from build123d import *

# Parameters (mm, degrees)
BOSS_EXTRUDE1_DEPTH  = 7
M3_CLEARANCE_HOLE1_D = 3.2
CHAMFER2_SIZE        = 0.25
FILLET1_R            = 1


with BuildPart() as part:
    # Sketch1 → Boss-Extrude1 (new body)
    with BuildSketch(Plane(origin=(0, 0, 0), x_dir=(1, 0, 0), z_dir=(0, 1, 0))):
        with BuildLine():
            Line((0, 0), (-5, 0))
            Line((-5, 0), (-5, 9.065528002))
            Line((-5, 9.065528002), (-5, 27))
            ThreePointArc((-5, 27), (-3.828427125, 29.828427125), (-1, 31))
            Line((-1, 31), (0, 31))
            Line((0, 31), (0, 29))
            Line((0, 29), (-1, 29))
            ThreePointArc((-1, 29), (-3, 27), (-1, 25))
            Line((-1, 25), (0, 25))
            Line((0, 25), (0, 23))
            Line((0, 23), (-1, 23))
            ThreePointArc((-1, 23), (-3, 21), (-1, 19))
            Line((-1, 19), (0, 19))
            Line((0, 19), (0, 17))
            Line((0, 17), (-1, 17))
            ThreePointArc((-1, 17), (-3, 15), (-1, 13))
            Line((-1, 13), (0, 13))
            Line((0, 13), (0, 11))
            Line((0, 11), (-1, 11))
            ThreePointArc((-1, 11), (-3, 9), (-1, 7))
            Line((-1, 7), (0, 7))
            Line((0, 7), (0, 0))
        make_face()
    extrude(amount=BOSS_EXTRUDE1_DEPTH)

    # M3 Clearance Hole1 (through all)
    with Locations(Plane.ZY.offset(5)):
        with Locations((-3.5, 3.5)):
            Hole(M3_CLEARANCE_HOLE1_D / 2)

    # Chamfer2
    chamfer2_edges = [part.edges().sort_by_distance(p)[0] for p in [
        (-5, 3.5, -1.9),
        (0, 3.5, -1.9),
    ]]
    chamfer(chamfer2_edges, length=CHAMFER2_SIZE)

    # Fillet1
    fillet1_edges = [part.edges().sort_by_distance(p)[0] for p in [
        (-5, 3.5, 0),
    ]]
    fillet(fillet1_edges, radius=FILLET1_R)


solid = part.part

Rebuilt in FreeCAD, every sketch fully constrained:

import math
import FreeCAD as App
import Part
import Sketcher
from FreeCAD import Vector


def edges_at(feature, points):
    """Names of the edges that pass closest to the given points."""
    edges = feature.Shape.Edges
    near = lambda p: min(range(len(edges)), key=lambda i: edges[i].distToShape(Part.Vertex(*p))[0])
    return sorted({f"Edge{near(p) + 1}" for p in points})

doc = App.newDocument("Part")
body = doc.addObject("PartDesign::Body", "Body")

# Sketch on XZ plane
sketch1 = body.newObject("Sketcher::SketchObject", "Sketch")
sketch1.AttachmentSupport = (doc.getObject("XZ_Plane"), [""])
sketch1.MapMode = "FlatFace"
sketch1.addGeometry(Part.LineSegment(Vector(-5, 0, 0), Vector(0, 0, 0)), False)
sketch1.addGeometry(Part.LineSegment(Vector(0, 0, 0), Vector(0, -7, 0)), False)
sketch1.addGeometry(Part.LineSegment(Vector(0, -7, 0), Vector(-1, -7, 0)), False)
sketch1.addGeometry(Part.ArcOfCircle(Part.Circle(Vector(-1, -9, 0), Vector(0, 0, 1), 2), math.radians(90), math.radians(270)), False)
sketch1.addGeometry(Part.LineSegment(Vector(-1, -11, 0), Vector(0, -11, 0)), False)
sketch1.addGeometry(Part.LineSegment(Vector(0, -11, 0), Vector(0, -13, 0)), False)
sketch1.addGeometry(Part.LineSegment(Vector(0, -13, 0), Vector(-1, -13, 0)), False)
sketch1.addGeometry(Part.ArcOfCircle(Part.Circle(Vector(-1, -15, 0), Vector(0, 0, 1), 2), math.radians(90), math.radians(270)), False)
sketch1.addGeometry(Part.LineSegment(Vector(-1, -17, 0), Vector(0, -17, 0)), False)
sketch1.addGeometry(Part.LineSegment(Vector(0, -17, 0), Vector(0, -19, 0)), False)
sketch1.addGeometry(Part.LineSegment(Vector(0, -19, 0), Vector(-1, -19, 0)), False)
sketch1.addGeometry(Part.ArcOfCircle(Part.Circle(Vector(-1, -21, 0), Vector(0, 0, 1), 2), math.radians(90), math.radians(270)), False)
sketch1.addGeometry(Part.LineSegment(Vector(-1, -23, 0), Vector(0, -23, 0)), False)
sketch1.addGeometry(Part.LineSegment(Vector(0, -23, 0), Vector(0, -25, 0)), False)
sketch1.addGeometry(Part.LineSegment(Vector(0, -25, 0), Vector(-1, -25, 0)), False)
sketch1.addGeometry(Part.ArcOfCircle(Part.Circle(Vector(-1, -27, 0), Vector(0, 0, 1), 2), math.radians(90), math.radians(270)), False)
sketch1.addGeometry(Part.LineSegment(Vector(-1, -29, 0), Vector(0, -29, 0)), False)
sketch1.addGeometry(Part.LineSegment(Vector(0, -29, 0), Vector(0, -31, 0)), False)
sketch1.addGeometry(Part.LineSegment(Vector(0, -31, 0), Vector(-1, -31, 0)), False)
sketch1.addGeometry(Part.ArcOfCircle(Part.Circle(Vector(-1, -27, 0), Vector(0, 0, 1), 4), math.radians(180), math.radians(270)), False)
sketch1.addGeometry(Part.LineSegment(Vector(-5, -27, 0), Vector(-5, 0, 0)), False)
sketch1.addConstraint(Sketcher.Constraint("Coincident", 0, 2, 1, 1))
sketch1.addConstraint(Sketcher.Constraint("Coincident", 1, 2, 2, 1))
sketch1.addConstraint(Sketcher.Constraint("Tangent", 2, 2, 3, 1))
sketch1.addConstraint(Sketcher.Constraint("Tangent", 3, 2, 4, 1))
sketch1.addConstraint(Sketcher.Constraint("Coincident", 4, 2, 5, 1))
sketch1.addConstraint(Sketcher.Constraint("Coincident", 5, 2, 6, 1))
sketch1.addConstraint(Sketcher.Constraint("Tangent", 6, 2, 7, 1))
sketch1.addConstraint(Sketcher.Constraint("Tangent", 7, 2, 8, 1))
sketch1.addConstraint(Sketcher.Constraint("Coincident", 8, 2, 9, 1))
sketch1.addConstraint(Sketcher.Constraint("Coincident", 9, 2, 10, 1))
sketch1.addConstraint(Sketcher.Constraint("Tangent", 10, 2, 11, 1))
sketch1.addConstraint(Sketcher.Constraint("Tangent", 11, 2, 12, 1))
sketch1.addConstraint(Sketcher.Constraint("Coincident", 12, 2, 13, 1))
sketch1.addConstraint(Sketcher.Constraint("Coincident", 13, 2, 14, 1))
sketch1.addConstraint(Sketcher.Constraint("Tangent", 14, 2, 15, 1))
sketch1.addConstraint(Sketcher.Constraint("Tangent", 15, 2, 16, 1))
sketch1.addConstraint(Sketcher.Constraint("Coincident", 16, 2, 17, 1))
sketch1.addConstraint(Sketcher.Constraint("Coincident", 17, 2, 18, 1))
sketch1.addConstraint(Sketcher.Constraint("Tangent", 18, 2, 19, 2))
sketch1.addConstraint(Sketcher.Constraint("Tangent", 19, 1, 20, 1))
sketch1.addConstraint(Sketcher.Constraint("Coincident", 20, 2, 0, 1))
sketch1.addConstraint(Sketcher.Constraint("Horizontal", 0))
sketch1.addConstraint(Sketcher.Constraint("Vertical", 1))
sketch1.addConstraint(Sketcher.Constraint("Horizontal", 2))
sketch1.addConstraint(Sketcher.Constraint("Horizontal", 4))
sketch1.addConstraint(Sketcher.Constraint("Vertical", 5))
sketch1.addConstraint(Sketcher.Constraint("Horizontal", 6))
sketch1.addConstraint(Sketcher.Constraint("Horizontal", 8))
sketch1.addConstraint(Sketcher.Constraint("Vertical", 9))
sketch1.addConstraint(Sketcher.Constraint("Horizontal", 10))
sketch1.addConstraint(Sketcher.Constraint("Horizontal", 12))
sketch1.addConstraint(Sketcher.Constraint("Vertical", 13))
sketch1.addConstraint(Sketcher.Constraint("Horizontal", 14))
sketch1.addConstraint(Sketcher.Constraint("Horizontal", 16))
sketch1.addConstraint(Sketcher.Constraint("Vertical", 17))
sketch1.addConstraint(Sketcher.Constraint("Horizontal", 18))
sketch1.addConstraint(Sketcher.Constraint("Vertical", 20))
sketch1.addConstraint(Sketcher.Constraint("Coincident", 0, 2, -1, 1))
sketch1.addConstraint(Sketcher.Constraint("Coincident", 19, 3, 15, 3))
sketch1.addConstraint(Sketcher.Constraint("Equal", 3, 7))
sketch1.addConstraint(Sketcher.Constraint("Equal", 7, 11))
sketch1.addConstraint(Sketcher.Constraint("Equal", 11, 15))
sketch1.addConstraint(Sketcher.Constraint("PointOnObject", 4, 2, -2))
sketch1.addConstraint(Sketcher.Constraint("PointOnObject", 8, 2, -2))
sketch1.addConstraint(Sketcher.Constraint("PointOnObject", 12, 2, -2))
sketch1.addConstraint(Sketcher.Constraint("PointOnObject", 16, 2, -2))
sketch1.addConstraint(Sketcher.Constraint("Vertical", 3, 3, 7, 3))
sketch1.addConstraint(Sketcher.Constraint("Vertical", 7, 3, 11, 3))
sketch1.addConstraint(Sketcher.Constraint("Vertical", 11, 3, 15, 3))
sketch1.addConstraint(Sketcher.Constraint("Equal", 5, 9))
sketch1.addConstraint(Sketcher.Constraint("Equal", 9, 13))
sketch1.addConstraint(Sketcher.Constraint("Equal", 13, 17))
sketch1.addConstraint(Sketcher.Constraint("Radius", 3, 2.0))
sketch1.addConstraint(Sketcher.Constraint("Radius", 19, 4.0))
sketch1.addConstraint(Sketcher.Constraint("DistanceX", 0, 1, 0, 2, 5.0))
sketch1.addConstraint(Sketcher.Constraint("DistanceY", 1, 2, 1, 1, 7.0))
pad1 = body.newObject("PartDesign::Pad", "Pad")
pad1.Profile = sketch1
pad1.Length = 7
pad1.Reversed = True

# Sketch on YZ plane
sketch2 = body.newObject("Sketcher::SketchObject", "Sketch001")
sketch2.AttachmentSupport = (doc.getObject("YZ_Plane"), [""])
sketch2.MapMode = "FlatFace"
sketch2.AttachmentOffset = App.Placement(Vector(0, 0, -5), App.Rotation())
sketch2.addGeometry(Part.Circle(Vector(3.5, -3.5, 0), Vector(0, 0, 1), 1.6), False)
sketch2.addConstraint(Sketcher.Constraint("Diameter", 0, 3.2))
sketch2.addConstraint(Sketcher.Constraint("DistanceX", -1, 1, 0, 3, 3.5))
sketch2.addConstraint(Sketcher.Constraint("DistanceY", 0, 3, -1, 1, 3.5))
doc.recompute()
hole = body.newObject("PartDesign::Hole", "Hole")
hole.Profile = sketch2
hole.ThreadType = "None"
hole.Diameter = 3.2
hole.DepthType = "ThroughAll"
hole.Reversed = True
doc.recompute()

chamfer = body.newObject("PartDesign::Chamfer", "Chamfer")
chamfer.Base = (hole, edges_at(hole, [(-5, 3.5, -1.9), (0, 3.5, -1.9)]))
chamfer.Size = 0.25
doc.recompute()

fillet = body.newObject("PartDesign::Fillet", "Fillet")
fillet.Base = (chamfer, edges_at(chamfer, [(-5, 3.5, 0)]))
fillet.Radius = 1

doc.recompute()
